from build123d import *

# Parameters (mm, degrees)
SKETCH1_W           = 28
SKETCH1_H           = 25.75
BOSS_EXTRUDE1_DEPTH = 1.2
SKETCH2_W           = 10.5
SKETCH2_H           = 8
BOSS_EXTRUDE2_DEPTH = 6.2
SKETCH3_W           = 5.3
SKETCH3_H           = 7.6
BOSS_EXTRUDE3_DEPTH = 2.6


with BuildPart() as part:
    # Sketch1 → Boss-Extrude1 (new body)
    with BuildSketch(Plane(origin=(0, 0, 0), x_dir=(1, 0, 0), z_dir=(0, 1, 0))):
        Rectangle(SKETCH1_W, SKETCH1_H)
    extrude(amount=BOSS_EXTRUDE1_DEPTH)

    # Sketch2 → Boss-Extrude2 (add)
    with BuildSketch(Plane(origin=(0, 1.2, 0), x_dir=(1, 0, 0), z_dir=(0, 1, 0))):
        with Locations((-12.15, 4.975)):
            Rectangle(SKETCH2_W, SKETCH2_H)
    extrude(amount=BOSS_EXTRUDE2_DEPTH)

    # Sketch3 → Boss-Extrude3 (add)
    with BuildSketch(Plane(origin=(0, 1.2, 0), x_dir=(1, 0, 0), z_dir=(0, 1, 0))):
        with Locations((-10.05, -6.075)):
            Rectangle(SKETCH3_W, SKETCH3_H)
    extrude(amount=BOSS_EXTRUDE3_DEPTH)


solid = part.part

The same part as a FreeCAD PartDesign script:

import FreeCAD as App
import Part
import Sketcher

doc = App.newDocument("Part")
body = doc.addObject("PartDesign::Body", "Body")

# Sketch on XZ plane
sketch1 = body.newObject("Sketcher::SketchObject", "Sketch")
sketch1.AttachmentSupport = (doc.getObject("XZ_Plane"), [""])
sketch1.MapMode = "FlatFace"
sketch1.addGeometry([
    Part.LineSegment(App.Vector(-14, -13, 0), App.Vector(-14, 13, 0)),
    Part.LineSegment(App.Vector(-14, 13, 0), App.Vector(14, 13, 0)),
    Part.LineSegment(App.Vector(14, 13, 0), App.Vector(14, -13, 0)),
    Part.LineSegment(App.Vector(14, -13, 0), App.Vector(-14, -13, 0)),
], False)
sketch1.addConstraint([
    Sketcher.Constraint("Coincident", 0, 2, 1, 1),
    Sketcher.Constraint("Coincident", 1, 2, 2, 1),
    Sketcher.Constraint("Coincident", 2, 2, 3, 1),
    Sketcher.Constraint("Coincident", 3, 2, 0, 1),
    Sketcher.Constraint("Vertical", 0),
    Sketcher.Constraint("Horizontal", 1),
    Sketcher.Constraint("Vertical", 2),
    Sketcher.Constraint("Horizontal", 3),
    Sketcher.Constraint("Symmetric", 0, 2, 2, 2, -1, 1),
    Sketcher.Constraint("DistanceX", 1, 1, 1, 2, 28.0),
    Sketcher.Constraint("DistanceY", 0, 1, 0, 2, 25.75),
])
pad1 = body.newObject("PartDesign::Pad", "Pad")
pad1.Profile = sketch1
pad1.Length = 1.2
pad1.Reversed = True

# Sketch on XZ plane
sketch2 = body.newObject("Sketcher::SketchObject", "Sketch001")
sketch2.AttachmentSupport = (doc.getObject("XZ_Plane"), [""])
sketch2.MapMode = "FlatFace"
sketch2.AttachmentOffset = App.Placement(App.Vector(0, 0, -1.2), App.Rotation())
sketch2.addGeometry([
    Part.LineSegment(App.Vector(-17, -9, 0), App.Vector(-17, -1, 0)),
    Part.LineSegment(App.Vector(-17, -1, 0), App.Vector(-7, -1, 0)),
    Part.LineSegment(App.Vector(-7, -1, 0), App.Vector(-7, -9, 0)),
    Part.LineSegment(App.Vector(-7, -9, 0), App.Vector(-17, -9, 0)),
], False)
sketch2.addConstraint([
    Sketcher.Constraint("Coincident", 0, 2, 1, 1),
    Sketcher.Constraint("Coincident", 1, 2, 2, 1),
    Sketcher.Constraint("Coincident", 2, 2, 3, 1),
    Sketcher.Constraint("Coincident", 3, 2, 0, 1),
    Sketcher.Constraint("Vertical", 0),
    Sketcher.Constraint("Horizontal", 1),
    Sketcher.Constraint("Vertical", 2),
    Sketcher.Constraint("Horizontal", 3),
    Sketcher.Constraint("DistanceY", 0, 1, 0, 2, 8.0),
    Sketcher.Constraint("DistanceX", 1, 1, 1, 2, 10.5),
    Sketcher.Constraint("DistanceX", 0, 2, -1, 1, 17.4),
    Sketcher.Constraint("DistanceY", 0, 2, -1, 1, 0.975),
])
pad2 = body.newObject("PartDesign::Pad", "Pad001")
pad2.Profile = sketch2
pad2.Length = 6.2
pad2.Reversed = True

# Sketch on XZ plane
sketch3 = body.newObject("Sketcher::SketchObject", "Sketch002")
sketch3.AttachmentSupport = (doc.getObject("XZ_Plane"), [""])
sketch3.MapMode = "FlatFace"
sketch3.AttachmentOffset = App.Placement(App.Vector(0, 0, -1.2), App.Rotation())
sketch3.addGeometry([
    Part.LineSegment(App.Vector(-13, 2, 0), App.Vector(-13, 10, 0)),
    Part.LineSegment(App.Vector(-13, 10, 0), App.Vector(-7, 10, 0)),
    Part.LineSegment(App.Vector(-7, 10, 0), App.Vector(-7, 2, 0)),
    Part.LineSegment(App.Vector(-7, 2, 0), App.Vector(-13, 2, 0)),
], False)
sketch3.addConstraint([
    Sketcher.Constraint("Coincident", 0, 2, 1, 1),
    Sketcher.Constraint("Coincident", 1, 2, 2, 1),
    Sketcher.Constraint("Coincident", 2, 2, 3, 1),
    Sketcher.Constraint("Coincident", 3, 2, 0, 1),
    Sketcher.Constraint("Vertical", 0),
    Sketcher.Constraint("Horizontal", 1),
    Sketcher.Constraint("Vertical", 2),
    Sketcher.Constraint("Horizontal", 3),
    Sketcher.Constraint("DistanceX", 1, 1, 1, 2, 5.3),
    Sketcher.Constraint("DistanceY", 0, 1, 0, 2, 7.6),
    Sketcher.Constraint("DistanceX", 0, 2, -1, 1, 12.7),
    Sketcher.Constraint("DistanceY", -1, 1, 0, 2, 9.875),
])
pad3 = body.newObject("PartDesign::Pad", "Pad002")
pad3.Profile = sketch3
pad3.Length = 2.6
pad3.Reversed = True

doc.recompute()
